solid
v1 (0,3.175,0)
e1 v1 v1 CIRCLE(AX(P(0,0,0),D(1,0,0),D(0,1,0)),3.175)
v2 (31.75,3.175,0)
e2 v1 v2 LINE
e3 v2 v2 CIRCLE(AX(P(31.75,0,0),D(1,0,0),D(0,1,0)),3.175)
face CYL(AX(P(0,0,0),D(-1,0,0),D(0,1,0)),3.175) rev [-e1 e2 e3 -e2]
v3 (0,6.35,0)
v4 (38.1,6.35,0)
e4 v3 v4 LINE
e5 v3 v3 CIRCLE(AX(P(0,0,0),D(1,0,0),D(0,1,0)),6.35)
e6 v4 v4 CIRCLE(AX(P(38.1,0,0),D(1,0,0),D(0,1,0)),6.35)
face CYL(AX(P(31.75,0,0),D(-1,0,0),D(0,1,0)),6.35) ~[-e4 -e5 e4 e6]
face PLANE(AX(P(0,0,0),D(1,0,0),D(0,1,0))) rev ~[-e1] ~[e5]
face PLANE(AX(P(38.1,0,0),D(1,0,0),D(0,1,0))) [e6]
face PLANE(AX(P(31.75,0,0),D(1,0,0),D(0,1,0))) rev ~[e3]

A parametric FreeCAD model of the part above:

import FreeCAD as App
import Part
import Sketcher
from FreeCAD import Vector
Q = App.Units.Quantity

doc = App.newDocument("Part")
body = doc.addObject("PartDesign::Body", "Body")

# Sketch on YZ plane
sketch1 = body.newObject("Sketcher::SketchObject", "Sketch")
sketch1.AttachmentSupport = (doc.getObject("YZ_Plane"), [""])
sketch1.MapMode = "FlatFace"
sketch1.addGeometry([
    Part.Circle(Vector(0, 0, 0), Vector(0, 0, 1), 6.35),
    Part.Circle(Vector(0, 0, 0), Vector(0, 0, 1), 3.175),
], False)
sketch1.addConstraint([
    Sketcher.Constraint("Coincident", 0, 3, -1, 1),
    Sketcher.Constraint("Coincident", 1, 3, -1, 1),
    Sketcher.Constraint("Diameter", 0, Q("0.5 in")),
    Sketcher.Constraint("Diameter", 1, Q("0.25 in")),
])
pad1 = body.newObject("PartDesign::Pad", "Pad")
pad1.Profile = sketch1
pad1.Length = Q("1.25 in")

# Sketch on YZ plane
sketch2 = body.newObject("Sketcher::SketchObject", "Sketch001")
sketch2.AttachmentSupport = (doc.getObject("YZ_Plane"), [""])
sketch2.MapMode = "FlatFace"
sketch2.AttachmentOffset = App.Placement(Vector(0, 0, 1.25 * 25.4), App.Rotation())
sketch2.addGeometry(Part.Circle(Vector(0, 0, 0), Vector(0, 0, 1), 6.35), False)
sketch2.addConstraint([
    Sketcher.Constraint("Coincident", 0, 3, -1, 1),
    Sketcher.Constraint("Diameter", 0, Q("0.5 in")),
])
pad2 = body.newObject("PartDesign::Pad", "Pad001")
pad2.Profile = sketch2
pad2.Length = Q("0.25 in")

doc.recompute()
